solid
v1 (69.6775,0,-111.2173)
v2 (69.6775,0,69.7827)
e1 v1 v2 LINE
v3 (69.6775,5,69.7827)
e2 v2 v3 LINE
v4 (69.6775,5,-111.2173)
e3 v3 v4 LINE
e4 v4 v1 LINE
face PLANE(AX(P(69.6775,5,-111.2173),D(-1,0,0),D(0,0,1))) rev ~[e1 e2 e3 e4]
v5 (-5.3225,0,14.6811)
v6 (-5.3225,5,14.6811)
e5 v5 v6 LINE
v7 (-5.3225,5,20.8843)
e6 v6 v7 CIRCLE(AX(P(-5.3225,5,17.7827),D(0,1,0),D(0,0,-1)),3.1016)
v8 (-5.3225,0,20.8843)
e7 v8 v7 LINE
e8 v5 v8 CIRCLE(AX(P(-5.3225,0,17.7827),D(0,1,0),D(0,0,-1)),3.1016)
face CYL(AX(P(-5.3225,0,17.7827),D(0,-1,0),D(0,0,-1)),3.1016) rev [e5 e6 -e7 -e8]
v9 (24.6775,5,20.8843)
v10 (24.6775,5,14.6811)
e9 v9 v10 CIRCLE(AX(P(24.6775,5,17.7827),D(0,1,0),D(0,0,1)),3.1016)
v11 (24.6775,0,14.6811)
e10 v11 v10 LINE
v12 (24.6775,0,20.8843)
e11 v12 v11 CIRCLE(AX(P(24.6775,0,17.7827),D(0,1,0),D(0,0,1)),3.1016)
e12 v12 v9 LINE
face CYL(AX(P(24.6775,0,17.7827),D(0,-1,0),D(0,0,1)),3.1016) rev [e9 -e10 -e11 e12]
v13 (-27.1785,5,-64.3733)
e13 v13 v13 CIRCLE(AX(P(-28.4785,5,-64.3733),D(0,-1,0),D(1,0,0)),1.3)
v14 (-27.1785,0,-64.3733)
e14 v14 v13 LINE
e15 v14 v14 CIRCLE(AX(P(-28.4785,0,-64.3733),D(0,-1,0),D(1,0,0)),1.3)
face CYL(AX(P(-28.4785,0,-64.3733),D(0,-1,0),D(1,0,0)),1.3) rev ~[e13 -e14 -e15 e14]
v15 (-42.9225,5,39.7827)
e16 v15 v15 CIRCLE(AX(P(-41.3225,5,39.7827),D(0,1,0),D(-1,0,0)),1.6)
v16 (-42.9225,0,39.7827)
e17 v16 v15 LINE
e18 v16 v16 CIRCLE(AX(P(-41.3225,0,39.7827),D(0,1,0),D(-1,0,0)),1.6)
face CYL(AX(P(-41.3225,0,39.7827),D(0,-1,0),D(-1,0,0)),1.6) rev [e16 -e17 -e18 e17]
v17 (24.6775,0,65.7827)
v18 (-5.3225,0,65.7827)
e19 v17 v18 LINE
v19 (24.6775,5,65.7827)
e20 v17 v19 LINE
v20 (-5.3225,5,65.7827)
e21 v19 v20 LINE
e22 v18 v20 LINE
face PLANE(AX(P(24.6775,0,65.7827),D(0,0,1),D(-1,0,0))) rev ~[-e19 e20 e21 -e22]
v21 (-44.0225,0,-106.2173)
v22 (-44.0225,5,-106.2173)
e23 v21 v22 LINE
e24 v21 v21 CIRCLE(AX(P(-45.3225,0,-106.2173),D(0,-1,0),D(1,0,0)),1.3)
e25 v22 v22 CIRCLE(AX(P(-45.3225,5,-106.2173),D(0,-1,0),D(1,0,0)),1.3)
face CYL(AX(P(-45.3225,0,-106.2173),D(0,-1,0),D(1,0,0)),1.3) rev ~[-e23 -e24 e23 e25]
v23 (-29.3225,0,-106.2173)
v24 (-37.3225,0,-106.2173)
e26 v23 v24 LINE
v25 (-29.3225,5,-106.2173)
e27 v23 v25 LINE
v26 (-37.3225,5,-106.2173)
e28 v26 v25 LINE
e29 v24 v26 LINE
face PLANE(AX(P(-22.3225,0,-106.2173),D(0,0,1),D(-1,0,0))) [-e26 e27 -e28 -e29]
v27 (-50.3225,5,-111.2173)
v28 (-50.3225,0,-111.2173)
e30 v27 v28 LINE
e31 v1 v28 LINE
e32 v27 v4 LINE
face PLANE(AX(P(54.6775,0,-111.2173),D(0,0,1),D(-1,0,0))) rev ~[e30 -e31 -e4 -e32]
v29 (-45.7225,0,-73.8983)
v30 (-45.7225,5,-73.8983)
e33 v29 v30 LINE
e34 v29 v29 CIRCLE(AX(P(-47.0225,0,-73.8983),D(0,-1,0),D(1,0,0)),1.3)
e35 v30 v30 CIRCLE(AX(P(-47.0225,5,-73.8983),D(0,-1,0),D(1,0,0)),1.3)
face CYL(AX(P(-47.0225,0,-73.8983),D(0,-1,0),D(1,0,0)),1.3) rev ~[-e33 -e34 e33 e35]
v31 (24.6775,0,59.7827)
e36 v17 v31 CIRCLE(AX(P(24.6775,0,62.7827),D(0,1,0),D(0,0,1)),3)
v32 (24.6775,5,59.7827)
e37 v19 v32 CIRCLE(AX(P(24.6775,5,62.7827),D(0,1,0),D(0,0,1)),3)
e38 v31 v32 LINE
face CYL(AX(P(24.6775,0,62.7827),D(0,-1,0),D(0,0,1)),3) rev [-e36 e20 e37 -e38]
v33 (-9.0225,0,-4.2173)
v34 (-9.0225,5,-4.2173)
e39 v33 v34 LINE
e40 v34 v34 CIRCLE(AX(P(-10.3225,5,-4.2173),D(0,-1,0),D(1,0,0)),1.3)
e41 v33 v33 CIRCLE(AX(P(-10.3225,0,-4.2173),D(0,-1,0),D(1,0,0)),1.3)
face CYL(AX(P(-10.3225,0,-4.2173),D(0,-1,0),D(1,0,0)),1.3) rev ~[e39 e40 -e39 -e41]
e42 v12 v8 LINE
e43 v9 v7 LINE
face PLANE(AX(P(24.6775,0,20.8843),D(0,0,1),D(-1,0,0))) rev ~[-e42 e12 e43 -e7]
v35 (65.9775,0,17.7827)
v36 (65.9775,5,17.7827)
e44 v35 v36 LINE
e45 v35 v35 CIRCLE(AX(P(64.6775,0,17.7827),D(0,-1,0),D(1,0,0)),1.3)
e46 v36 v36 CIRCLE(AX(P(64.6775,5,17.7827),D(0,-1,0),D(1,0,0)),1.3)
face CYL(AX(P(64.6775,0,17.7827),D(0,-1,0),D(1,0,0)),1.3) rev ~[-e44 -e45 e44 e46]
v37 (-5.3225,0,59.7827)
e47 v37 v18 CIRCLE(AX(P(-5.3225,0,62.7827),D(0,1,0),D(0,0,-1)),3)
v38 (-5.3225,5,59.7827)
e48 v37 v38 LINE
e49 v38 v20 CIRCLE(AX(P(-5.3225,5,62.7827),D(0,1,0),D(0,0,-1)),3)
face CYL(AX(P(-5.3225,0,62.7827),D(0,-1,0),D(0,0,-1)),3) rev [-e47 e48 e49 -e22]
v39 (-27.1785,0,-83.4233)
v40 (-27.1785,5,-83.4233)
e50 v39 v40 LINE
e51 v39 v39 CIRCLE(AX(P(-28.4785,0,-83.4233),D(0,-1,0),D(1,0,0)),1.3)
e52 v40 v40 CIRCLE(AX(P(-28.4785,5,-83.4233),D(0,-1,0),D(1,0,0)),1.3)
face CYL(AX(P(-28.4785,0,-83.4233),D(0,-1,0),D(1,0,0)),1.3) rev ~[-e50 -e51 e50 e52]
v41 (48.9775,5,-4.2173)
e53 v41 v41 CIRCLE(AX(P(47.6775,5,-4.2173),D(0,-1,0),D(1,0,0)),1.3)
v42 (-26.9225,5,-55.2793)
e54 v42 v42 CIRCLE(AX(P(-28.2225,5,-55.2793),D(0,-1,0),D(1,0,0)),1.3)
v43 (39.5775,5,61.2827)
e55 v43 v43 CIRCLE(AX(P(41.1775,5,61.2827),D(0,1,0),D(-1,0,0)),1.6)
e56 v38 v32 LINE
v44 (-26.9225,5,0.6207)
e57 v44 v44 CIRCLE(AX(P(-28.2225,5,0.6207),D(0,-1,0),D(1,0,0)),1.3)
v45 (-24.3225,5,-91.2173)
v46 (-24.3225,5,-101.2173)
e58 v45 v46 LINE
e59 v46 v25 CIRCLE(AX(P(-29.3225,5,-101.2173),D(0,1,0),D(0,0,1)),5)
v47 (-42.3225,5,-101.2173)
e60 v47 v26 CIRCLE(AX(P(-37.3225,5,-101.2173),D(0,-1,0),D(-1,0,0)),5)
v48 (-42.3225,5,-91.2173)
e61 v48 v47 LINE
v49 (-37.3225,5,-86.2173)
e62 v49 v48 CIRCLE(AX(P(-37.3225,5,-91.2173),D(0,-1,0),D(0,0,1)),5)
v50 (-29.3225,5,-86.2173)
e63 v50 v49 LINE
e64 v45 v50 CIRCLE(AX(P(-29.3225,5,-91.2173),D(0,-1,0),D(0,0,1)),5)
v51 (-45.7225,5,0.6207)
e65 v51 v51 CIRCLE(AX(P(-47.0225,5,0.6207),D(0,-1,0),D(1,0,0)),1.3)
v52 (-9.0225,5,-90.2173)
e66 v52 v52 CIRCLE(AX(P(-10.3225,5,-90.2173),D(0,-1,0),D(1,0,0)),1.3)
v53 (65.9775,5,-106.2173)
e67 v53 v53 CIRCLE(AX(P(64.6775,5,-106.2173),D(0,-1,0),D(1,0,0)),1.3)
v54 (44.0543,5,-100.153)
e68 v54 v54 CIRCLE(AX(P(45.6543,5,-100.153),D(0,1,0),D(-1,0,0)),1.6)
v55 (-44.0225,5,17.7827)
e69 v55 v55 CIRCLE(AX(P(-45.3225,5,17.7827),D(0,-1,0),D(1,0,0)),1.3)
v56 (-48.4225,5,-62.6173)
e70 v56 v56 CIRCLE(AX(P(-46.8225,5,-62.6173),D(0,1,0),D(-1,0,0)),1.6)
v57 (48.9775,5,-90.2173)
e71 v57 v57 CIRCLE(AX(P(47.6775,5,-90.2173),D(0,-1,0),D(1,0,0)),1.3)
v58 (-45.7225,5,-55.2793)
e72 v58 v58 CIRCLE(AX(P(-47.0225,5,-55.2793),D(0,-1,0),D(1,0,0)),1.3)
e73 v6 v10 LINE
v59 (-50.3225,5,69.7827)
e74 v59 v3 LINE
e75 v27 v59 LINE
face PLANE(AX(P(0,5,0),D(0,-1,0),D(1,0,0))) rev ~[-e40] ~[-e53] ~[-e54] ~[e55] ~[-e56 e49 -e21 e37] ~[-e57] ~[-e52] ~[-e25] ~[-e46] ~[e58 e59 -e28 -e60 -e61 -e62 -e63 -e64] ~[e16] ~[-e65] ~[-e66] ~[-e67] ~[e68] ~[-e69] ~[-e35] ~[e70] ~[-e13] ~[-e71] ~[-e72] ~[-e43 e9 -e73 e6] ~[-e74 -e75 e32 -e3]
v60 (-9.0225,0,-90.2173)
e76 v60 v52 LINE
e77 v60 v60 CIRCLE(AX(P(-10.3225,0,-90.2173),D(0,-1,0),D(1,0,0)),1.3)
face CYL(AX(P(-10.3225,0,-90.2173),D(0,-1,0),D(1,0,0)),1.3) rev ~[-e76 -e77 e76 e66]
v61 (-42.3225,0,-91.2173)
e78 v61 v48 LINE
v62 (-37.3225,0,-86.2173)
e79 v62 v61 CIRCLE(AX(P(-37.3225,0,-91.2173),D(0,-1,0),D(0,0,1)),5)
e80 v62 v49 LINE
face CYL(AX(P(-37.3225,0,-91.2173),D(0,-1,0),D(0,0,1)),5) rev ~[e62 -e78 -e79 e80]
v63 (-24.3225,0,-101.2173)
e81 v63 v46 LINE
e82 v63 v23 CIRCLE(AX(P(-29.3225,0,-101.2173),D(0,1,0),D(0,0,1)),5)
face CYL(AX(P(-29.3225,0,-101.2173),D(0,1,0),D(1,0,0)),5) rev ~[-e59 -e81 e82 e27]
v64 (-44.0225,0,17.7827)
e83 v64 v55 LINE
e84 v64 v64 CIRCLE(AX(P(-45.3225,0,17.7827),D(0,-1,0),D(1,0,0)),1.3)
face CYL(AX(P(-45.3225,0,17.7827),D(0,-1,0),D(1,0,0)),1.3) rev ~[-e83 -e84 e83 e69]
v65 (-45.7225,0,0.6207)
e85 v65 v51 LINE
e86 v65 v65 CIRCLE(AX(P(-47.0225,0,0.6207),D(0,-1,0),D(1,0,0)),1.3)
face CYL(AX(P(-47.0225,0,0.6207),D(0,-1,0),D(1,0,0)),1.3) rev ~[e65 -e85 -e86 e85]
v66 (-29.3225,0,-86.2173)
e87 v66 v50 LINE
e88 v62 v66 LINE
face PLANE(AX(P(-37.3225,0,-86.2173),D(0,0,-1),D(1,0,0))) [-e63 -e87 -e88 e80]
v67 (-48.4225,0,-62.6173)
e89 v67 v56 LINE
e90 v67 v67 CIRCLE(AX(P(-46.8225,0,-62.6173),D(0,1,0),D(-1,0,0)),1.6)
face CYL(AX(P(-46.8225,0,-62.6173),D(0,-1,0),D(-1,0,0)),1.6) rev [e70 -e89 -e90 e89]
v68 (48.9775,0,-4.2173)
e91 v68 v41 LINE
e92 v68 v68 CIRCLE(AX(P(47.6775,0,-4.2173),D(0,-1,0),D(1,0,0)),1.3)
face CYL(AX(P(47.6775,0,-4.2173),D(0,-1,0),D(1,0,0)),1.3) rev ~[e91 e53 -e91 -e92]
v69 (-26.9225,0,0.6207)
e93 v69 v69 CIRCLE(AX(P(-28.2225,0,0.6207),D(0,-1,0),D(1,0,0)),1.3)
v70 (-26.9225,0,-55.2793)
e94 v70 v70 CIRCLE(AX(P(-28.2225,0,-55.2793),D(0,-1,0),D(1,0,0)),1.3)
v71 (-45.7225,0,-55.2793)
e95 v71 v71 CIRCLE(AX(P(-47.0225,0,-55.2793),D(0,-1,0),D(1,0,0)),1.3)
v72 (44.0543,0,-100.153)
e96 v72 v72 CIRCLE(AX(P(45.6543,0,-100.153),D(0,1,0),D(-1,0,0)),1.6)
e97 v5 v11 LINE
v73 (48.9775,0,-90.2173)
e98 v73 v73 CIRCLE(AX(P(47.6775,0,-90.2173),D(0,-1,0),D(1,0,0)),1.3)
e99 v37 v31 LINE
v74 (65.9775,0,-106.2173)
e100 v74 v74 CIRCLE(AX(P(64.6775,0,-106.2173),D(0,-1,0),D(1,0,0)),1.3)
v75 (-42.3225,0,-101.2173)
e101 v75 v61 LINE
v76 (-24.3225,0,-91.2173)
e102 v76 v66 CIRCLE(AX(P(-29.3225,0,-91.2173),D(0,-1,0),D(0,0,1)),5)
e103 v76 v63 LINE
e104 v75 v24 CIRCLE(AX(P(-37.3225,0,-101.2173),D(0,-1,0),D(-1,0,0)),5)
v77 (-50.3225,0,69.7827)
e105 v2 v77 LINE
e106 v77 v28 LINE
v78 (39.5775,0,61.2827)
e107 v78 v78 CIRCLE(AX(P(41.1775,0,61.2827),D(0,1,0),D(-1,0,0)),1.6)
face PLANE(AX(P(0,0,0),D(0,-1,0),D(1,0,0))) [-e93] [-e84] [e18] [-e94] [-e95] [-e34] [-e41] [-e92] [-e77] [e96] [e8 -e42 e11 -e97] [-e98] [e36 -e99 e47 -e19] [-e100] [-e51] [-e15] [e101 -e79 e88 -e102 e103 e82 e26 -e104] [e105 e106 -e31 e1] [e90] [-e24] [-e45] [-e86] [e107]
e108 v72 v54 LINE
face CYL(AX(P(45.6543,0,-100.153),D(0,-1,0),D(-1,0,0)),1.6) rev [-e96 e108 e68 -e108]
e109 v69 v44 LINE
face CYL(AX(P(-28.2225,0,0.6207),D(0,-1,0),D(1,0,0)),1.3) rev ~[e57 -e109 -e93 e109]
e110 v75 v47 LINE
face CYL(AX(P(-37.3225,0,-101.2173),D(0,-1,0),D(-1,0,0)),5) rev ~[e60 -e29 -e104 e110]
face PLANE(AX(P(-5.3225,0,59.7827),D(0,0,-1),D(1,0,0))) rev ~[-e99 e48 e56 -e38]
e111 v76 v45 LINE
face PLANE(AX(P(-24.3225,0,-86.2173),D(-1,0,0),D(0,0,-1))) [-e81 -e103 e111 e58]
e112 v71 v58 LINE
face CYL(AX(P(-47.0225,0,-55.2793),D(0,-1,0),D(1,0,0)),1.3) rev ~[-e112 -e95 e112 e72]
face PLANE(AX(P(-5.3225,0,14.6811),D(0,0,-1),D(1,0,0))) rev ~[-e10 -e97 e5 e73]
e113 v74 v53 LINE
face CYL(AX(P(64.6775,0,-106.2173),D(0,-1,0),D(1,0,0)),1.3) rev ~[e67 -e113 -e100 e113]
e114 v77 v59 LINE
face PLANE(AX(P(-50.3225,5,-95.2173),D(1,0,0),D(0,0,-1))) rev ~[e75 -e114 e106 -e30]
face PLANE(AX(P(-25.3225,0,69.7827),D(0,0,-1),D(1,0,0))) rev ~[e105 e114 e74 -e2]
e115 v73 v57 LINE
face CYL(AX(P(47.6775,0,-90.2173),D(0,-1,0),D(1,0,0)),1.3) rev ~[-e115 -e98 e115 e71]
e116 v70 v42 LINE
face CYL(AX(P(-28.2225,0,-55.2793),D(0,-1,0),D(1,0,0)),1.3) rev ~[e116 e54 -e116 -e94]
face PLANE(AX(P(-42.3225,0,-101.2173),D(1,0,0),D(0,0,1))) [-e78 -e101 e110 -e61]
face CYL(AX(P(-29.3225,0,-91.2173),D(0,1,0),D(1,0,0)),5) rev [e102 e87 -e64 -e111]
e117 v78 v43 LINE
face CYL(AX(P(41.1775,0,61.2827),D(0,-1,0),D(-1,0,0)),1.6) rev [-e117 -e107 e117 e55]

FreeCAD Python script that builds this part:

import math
import FreeCAD as App
import Part
import Sketcher
from FreeCAD import Vector
Q = App.Units.Quantity


def edges_at(feature, points):
    """Names of the edges that pass closest to the given points."""
    edges = feature.Shape.Edges
    near = lambda p: min(range(len(edges)), key=lambda i: edges[i].distToShape(Part.Vertex(*p))[0])
    return sorted({f"Edge{near(p) + 1}" for p in points})

doc = App.newDocument("Part")
params = doc.addObject("Spreadsheet::Sheet", "Params")
for row, (alias, value) in enumerate([
    ("sketch1_radius", "4 mm"),
    ("sketch1_radius2", "3 mm"),
    ("sketch1_diameter", "3.2 mm"),
    ("sketch1_width", "90 mm"),
    ("sketch1_width2", "11 mm"),
    ("pad1_length", "5 mm"),
    ("sketch2_radius", "4 mm"),
    ("sketch2_width", "11 mm"),
    ("sketch2_height", "16 mm"),
    ("sketch2_height2", "49 mm"),
    ("sketch2_height3", "30 mm"),
    ("pad2_length", "5 mm"),
    ("sketch3_radius", "5 mm"),
    ("sketch3_diameter", "2.6 mm"),
    ("sketch3_height", "10 mm"),
    ("sketch3_width", "15 mm"),
    ("pocket1_length", "10 mm"),
    ("sketch4_diameter", "2.6 mm"),
    ("pad3_length", "5 mm"),
    ("sketch5_diameter", "2.5 mm"),
    ("pocket2_length", "5 mm"),
    ("sketch6_diameter", "2.6 mm"),
    ("sketch6_diameter2", "2.5 mm"),
    ("pocket3_length", "5 mm"),
    ("sketch7_radius", "5 mm"),
    ("sketch7_width", "2 mm"),
    ("sketch7_height", "20 mm"),
    ("pad4_length", "5 mm"),
    ("fillet_radius", "5 mm"),
], start=1):
    params.set(f"A{row}", alias)
    params.set(f"B{row}", "=" + value)
    params.setAlias(f"B{row}", alias)

body = doc.addObject("PartDesign::Body", "Body")

# Sketch on XZ plane
sketch1 = doc.addObject("Sketcher::SketchObject", "Sketch")
body.addObject(sketch1)
sketch1.AttachmentSupport = (doc.XZ_Plane, [""])
sketch1.MapMode = "FlatFace"
sketch1.addGeometry([
    Part.LineSegment(Vector(54.6775, -111.2173, 0), Vector(-35.3225, -111.2173, 0)),  # 0
    Part.LineSegment(Vector(-35.3225, -111.2173, 0), Vector(-35.3225, -99.2173, 0)),  # 1
    Part.ArcOfCircle(Part.Circle(Vector(-39.3225, -99.2173, 0), Vector(0, 0, 1), 4), math.radians(0), math.radians(90)),  # 2
    Part.LineSegment(Vector(-39.3225, -95.2173, 0), Vector(-50.3225, -95.2173, 0)),  # 3
    Part.LineSegment(Vector(-50.3225, -95.2173, 0), Vector(-50.3225, -19.2173, 0)),  # 4
    Part.LineSegment(Vector(-50.3225, -19.2173, 0), Vector(-41.3225, -10.2173, 0)),  # 5
    Part.LineSegment(Vector(-41.3225, -10.2173, 0), Vector(-41.3225, 19.7827, 0)),  # 6
    Part.LineSegment(Vector(-41.3225, 19.7827, 0), Vector(-50.3225, 29.7827, 0)),  # 7
    Part.LineSegment(Vector(-50.3225, 29.7827, 0), Vector(-50.3225, 69.7827, 0)),  # 8
    Part.LineSegment(Vector(-50.3225, 69.7827, 0), Vector(69.6775, 69.7827, 0)),  # 9
    Part.LineSegment(Vector(69.6775, 69.7827, 0), Vector(69.6775, -95.2173, 0)),  # 10
    Part.LineSegment(Vector(69.6775, -95.2173, 0), Vector(58.6775, -95.2173, 0)),  # 11
    Part.ArcOfCircle(Part.Circle(Vector(58.6775, -99.2173, 0), Vector(0, 0, 1), 4), math.radians(90), math.radians(180)),  # 12
    Part.LineSegment(Vector(54.6775, -99.2173, 0), Vector(54.6775, -111.2173, 0)),  # 13
    Part.Circle(Vector(45.6543, -100.153, 0), Vector(0, 0, 1), 1.6),  # 14
    Part.Circle(Vector(-46.8225, -62.6173, 0), Vector(0, 0, 1), 1.6),  # 15
    Part.ArcOfCircle(Part.Circle(Vector(-5.3225, 17.7827, 0), Vector(0, 0, 1), 3.1016), math.radians(90), math.radians(270)),  # 16
    Part.LineSegment(Vector(-5.3225, 14.6811, 0), Vector(24.6775, 14.6811, 0)),  # 17
    Part.ArcOfCircle(Part.Circle(Vector(24.6775, 17.7827, 0), Vector(0, 0, 1), 3.1016), math.radians(-90), math.radians(90)),  # 18
    Part.LineSegment(Vector(24.6775, 20.8843, 0), Vector(-5.3225, 20.8843, 0)),  # 19
    Part.Circle(Vector(41.1775, 61.2827, 0), Vector(0, 0, 1), 1.6),  # 20
    Part.ArcOfCircle(Part.Circle(Vector(24.6775, 62.7827, 0), Vector(0, 0, 1), 3), math.radians(-90), math.radians(90)),  # 21
    Part.LineSegment(Vector(24.6775, 65.7827, 0), Vector(-5.3225, 65.7827, 0)),  # 22
    Part.ArcOfCircle(Part.Circle(Vector(-5.3225, 62.7827, 0), Vector(0, 0, 1), 3), math.radians(90), math.radians(270)),  # 23
    Part.LineSegment(Vector(-5.3225, 59.7827, 0), Vector(24.6775, 59.7827, 0)),  # 24
    Part.Circle(Vector(-41.3225, 39.7827, 0), Vector(0, 0, 1), 1.6),  # 25
], False)
sketch1.addConstraint([
    Sketcher.Constraint("Coincident", 0, 2, 1, 1),
    Sketcher.Constraint("Tangent", 1, 2, 2, 1),
    Sketcher.Constraint("Tangent", 2, 2, 3, 1),
    Sketcher.Constraint("Coincident", 3, 2, 4, 1),
    Sketcher.Constraint("Coincident", 4, 2, 5, 1),
    Sketcher.Constraint("Coincident", 5, 2, 6, 1),
    Sketcher.Constraint("Coincident", 6, 2, 7, 1),
    Sketcher.Constraint("Coincident", 7, 2, 8, 1),
    Sketcher.Constraint("Coincident", 8, 2, 9, 1),
    Sketcher.Constraint("Coincident", 9, 2, 10, 1),
    Sketcher.Constraint("Coincident", 10, 2, 11, 1),
    Sketcher.Constraint("Tangent", 11, 2, 12, 1),
    Sketcher.Constraint("Tangent", 12, 2, 13, 1),
    Sketcher.Constraint("Coincident", 13, 2, 0, 1),
    Sketcher.Constraint("Tangent", 16, 2, 17, 1),
    Sketcher.Constraint("Tangent", 17, 2, 18, 1),
    Sketcher.Constraint("Tangent", 18, 2, 19, 1),
    Sketcher.Constraint("Tangent", 19, 2, 16, 1),
    Sketcher.Constraint("Tangent", 21, 2, 22, 1),
    Sketcher.Constraint("Tangent", 22, 2, 23, 1),
    Sketcher.Constraint("Tangent", 23, 2, 24, 1),
    Sketcher.Constraint("Tangent", 24, 2, 21, 1),
    Sketcher.Constraint("Horizontal", 0),
    Sketcher.Constraint("Vertical", 1),
    Sketcher.Constraint("Horizontal", 3),
    Sketcher.Constraint("Vertical", 4),
    Sketcher.Constraint("Vertical", 6),
    Sketcher.Constraint("Vertical", 8),
    Sketcher.Constraint("Horizontal", 9),
    Sketcher.Constraint("Vertical", 10),
    Sketcher.Constraint("Horizontal", 11),
    Sketcher.Constraint("Vertical", 13),
    Sketcher.Constraint("Horizontal", 17),
    Sketcher.Constraint("Horizontal", 19),
    Sketcher.Constraint("Horizontal", 22),
    Sketcher.Constraint("Horizontal", 24),
    Sketcher.Constraint("Equal", 2, 12),
    Sketcher.Constraint("Equal", 14, 15),
    Sketcher.Constraint("Equal", 15, 20),
    Sketcher.Constraint("Equal", 20, 25),
    Sketcher.Constraint("Horizontal", 2, 3, 12, 3),
    Sketcher.Constraint("Vertical", 18, 3, 21, 3),
    Sketcher.Constraint("Vertical", 16, 3, 23, 3),
    Sketcher.Constraint("Vertical", 25, 3, 5, 2),
    Sketcher.Constraint("Vertical", 4, 2, 7, 2),
    Sketcher.Constraint("Equal", 3, 11),
    Sketcher.Constraint("Equal", 24, 6),
    Sketcher.Constraint("Radius", 2, 4.0),
    Sketcher.Constraint("Radius", 21, 3.0),
    Sketcher.Constraint("Diameter", 14, 3.2),
    Sketcher.Constraint("DistanceX", 0, 2, 0, 1, 90.0),
    Sketcher.Constraint("DistanceX", 3, 2, 3, 1, 11.0),
    Sketcher.Constraint("DistanceX", 17, 1, 17, 2, 30.0),
    Sketcher.Constraint("DistanceY", 1, 1, 1, 2, 12.0),
    Sketcher.Constraint("DistanceY", 4, 1, 4, 2, 76.0),
    Sketcher.Constraint("DistanceY", 8, 1, 8, 2, 40.0),
    Sketcher.Constraint("DistanceY", 10, 2, 10, 1, 165.0),
    Sketcher.Constraint("Angle", 5, Q("45 deg")),
    Sketcher.Constraint("DistanceX", 2, 3, 16, 3, 34.0),
    Sketcher.Constraint("DistanceY", 2, 3, 16, 3, 117.0),
    Sketcher.Constraint("DistanceX", 15, 3, 20, 3, 88.0),
    Sketcher.Constraint("DistanceY", 18, 3, 21, 3, 45.0),
    Sketcher.Constraint("DistanceX", 25, 3, 16, 3, 36.0),
    Sketcher.Constraint("DistanceY", 16, 3, 25, 3, 22.0),
    Sketcher.Constraint("Radius", 16, 3.1016),
    Sketcher.Constraint("DistanceX", 15, 3, 2, 3, 7.5),
    Sketcher.Constraint("DistanceY", 2, 3, 15, 3, 36.6),
    Sketcher.Constraint("DistanceY", 18, 3, 20, 3, 43.5),
    Sketcher.Constraint("DistanceY", 14, 3, -1, 1, 100.153),
    Sketcher.Constraint("DistanceY", -1, 1, 16, 2, 14.681),
    Sketcher.Constraint("DistanceX", 2, 3, -1, 1, 39.3225),
    Sketcher.Constraint("DistanceX", -1, 1, 14, 3, 45.6543),
])
sketch1.setExpression("Constraints[47]", "Params.sketch1_radius")
sketch1.setExpression("Constraints[48]", "Params.sketch1_radius2")
sketch1.setExpression("Constraints[49]", "Params.sketch1_diameter")
sketch1.setExpression("Constraints[50]", "Params.sketch1_width")
sketch1.setExpression("Constraints[51]", "Params.sketch1_width2")
pad1 = doc.addObject("PartDesign::Pad", "Pad")
body.addObject(pad1)
pad1.Profile = sketch1
pad1.setExpression("Length", "Params.pad1_length")
pad1.Reversed = True

# Sketch on XZ plane
sketch2 = doc.addObject("Sketcher::SketchObject", "Sketch001")
body.addObject(sketch2)
sketch2.AttachmentSupport = (doc.XZ_Plane, [""])
sketch2.MapMode = "FlatFace"
sketch2.AttachmentOffset = App.Placement(Vector(0, 0, -5), App.Rotation())
sketch2.addGeometry([
    Part.LineSegment(Vector(-50.3225, -111.2173, 0), Vector(-50.3225, -95.2173, 0)),  # 0
    Part.LineSegment(Vector(-50.3225, -95.2173, 0), Vector(-39.3225, -95.2173, 0)),  # 1
    Part.ArcOfCircle(Part.Circle(Vector(-39.3225, -99.2173, 0), Vector(0, 0, 1), 4), math.radians(0), math.radians(90)),  # 2
    Part.LineSegment(Vector(-35.3225, -99.2173, 0), Vector(-35.3225, -111.2173, 0)),  # 3
    Part.LineSegment(Vector(-35.3225, -111.2173, 0), Vector(-50.3225, -111.2173, 0)),  # 4
    Part.LineSegment(Vector(-41.3225, -10.2173, 0), Vector(-50.3225, -19.2173, 0)),  # 5
    Part.LineSegment(Vector(-50.3225, -19.2173, 0), Vector(-50.3225, 29.7827, 0)),  # 6
    Part.LineSegment(Vector(-50.3225, 29.7827, 0), Vector(-41.3225, 19.7827, 0)),  # 7
    Part.LineSegment(Vector(-41.3225, 19.7827, 0), Vector(-41.3225, -10.2173, 0)),  # 8
    Part.LineSegment(Vector(69.6775, -111.2173, 0), Vector(54.6775, -111.2173, 0)),  # 9
    Part.LineSegment(Vector(54.6775, -111.2173, 0), Vector(54.6775, -99.2173, 0)),  # 10
    Part.ArcOfCircle(Part.Circle(Vector(58.6775, -99.2173, 0), Vector(0, 0, 1), 4), math.radians(90), math.radians(180)),  # 11
    Part.LineSegment(Vector(58.6775, -95.2173, 0), Vector(69.6775, -95.2173, 0)),  # 12
    Part.LineSegment(Vector(69.6775, -95.2173, 0), Vector(69.6775, -111.2173, 0)),  # 13
], False)
sketch2.addConstraint([
    Sketcher.Constraint("Coincident", 0, 2, 1, 1),
    Sketcher.Constraint("Tangent", 1, 2, 2, 2),
    Sketcher.Constraint("Tangent", 2, 1, 3, 1),
    Sketcher.Constraint("Coincident", 3, 2, 4, 1),
    Sketcher.Constraint("Coincident", 4, 2, 0, 1),
    Sketcher.Constraint("Coincident", 5, 2, 6, 1),
    Sketcher.Constraint("Coincident", 6, 2, 7, 1),
    Sketcher.Constraint("Coincident", 7, 2, 8, 1),
    Sketcher.Constraint("Coincident", 8, 2, 5, 1),
    Sketcher.Constraint("Coincident", 9, 2, 10, 1),
    Sketcher.Constraint("Tangent", 10, 2, 11, 2),
    Sketcher.Constraint("Tangent", 11, 1, 12, 1),
    Sketcher.Constraint("Coincident", 12, 2, 13, 1),
    Sketcher.Constraint("Coincident", 13, 2, 9, 1),
    Sketcher.Constraint("Vertical", 0),
    Sketcher.Constraint("Horizontal", 1),
    Sketcher.Constraint("Vertical", 3),
    Sketcher.Constraint("Horizontal", 4),
    Sketcher.Constraint("Vertical", 6),
    Sketcher.Constraint("Vertical", 8),
    Sketcher.Constraint("Horizontal", 9),
    Sketcher.Constraint("Vertical", 10),
    Sketcher.Constraint("Horizontal", 12),
    Sketcher.Constraint("Vertical", 13),
    Sketcher.Constraint("Equal", 2, 11),
    Sketcher.Constraint("Horizontal", 2, 3, 11, 3),
    Sketcher.Constraint("Horizontal", 4, 2, 9, 2),
    Sketcher.Constraint("Vertical", 4, 2, 5, 2),
    Sketcher.Constraint("Equal", 4, 9),
    Sketcher.Constraint("Radius", 2, 4.0),
    Sketcher.Constraint("DistanceX", 1, 1, 1, 2, 11.0),
    Sketcher.Constraint("DistanceY", 0, 1, 0, 2, 16.0),
    Sketcher.Constraint("DistanceY", 6, 1, 6, 2, 49.0),
    Sketcher.Constraint("DistanceY", 8, 2, 8, 1, 30.0),
    Sketcher.Constraint("Angle", 5, Q("-135 deg")),
    Sketcher.Constraint("DistanceX", 2, 3, 11, 3, 98.0),
    Sketcher.Constraint("DistanceY", 0, 2, 5, 2, 76.0),
    Sketcher.Constraint("DistanceX", 6, 2, 7, 2, 9.0),
    Sketcher.Constraint("DistanceX", 2, 3, -1, 1, 39.3225),
    Sketcher.Constraint("DistanceY", 2, 3, -1, 1, 99.2173),
])
sketch2.setExpression("Constraints[29]", "Params.sketch2_radius")
sketch2.setExpression("Constraints[30]", "Params.sketch2_width")
sketch2.setExpression("Constraints[31]", "Params.sketch2_height")
sketch2.setExpression("Constraints[32]", "Params.sketch2_height2")
sketch2.setExpression("Constraints[33]", "Params.sketch2_height3")
pad2 = doc.addObject("PartDesign::Pad", "Pad001")
body.addObject(pad2)
pad2.Profile = sketch2
pad2.setExpression("Length", "Params.pad2_length")

# Sketch on XZ plane
sketch3 = doc.addObject("Sketcher::SketchObject", "Sketch002")
body.addObject(sketch3)
sketch3.AttachmentSupport = (doc.XZ_Plane, [""])
sketch3.MapMode = "FlatFace"
sketch3.addGeometry([
    Part.Circle(Vector(-23.2225, 2.6207, 0), Vector(0, 0, 1), 1.3),  # 0
    Part.Circle(Vector(-23.2225, -53.2793, 0), Vector(0, 0, 1), 1.3),  # 1
    Part.Circle(Vector(-42.0225, 2.6207, 0), Vector(0, 0, 1), 1.3),  # 2
    Part.Circle(Vector(-42.0225, -53.2793, 0), Vector(0, 0, 1), 1.3),  # 3
    Part.Circle(Vector(-23.4785, -64.3733, 0), Vector(0, 0, 1), 1.3),  # 4
    Part.Circle(Vector(-23.4785, -83.4233, 0), Vector(0, 0, 1), 1.3),  # 5
    Part.Circle(Vector(47.6775, -4.2173, 0), Vector(0, 0, 1), 1.3),  # 6
    Part.Circle(Vector(-10.3225, -4.2173, 0), Vector(0, 0, 1), 1.3),  # 7
    Part.Circle(Vector(-10.3225, -90.2173, 0), Vector(0, 0, 1), 1.3),  # 8
    Part.Circle(Vector(47.6775, -90.2173, 0), Vector(0, 0, 1), 1.3),  # 9
    Part.Circle(Vector(64.6775, 17.7827, 0), Vector(0, 0, 1), 1.3),  # 10
    Part.Circle(Vector(-45.3225, 17.7827, 0), Vector(0, 0, 1), 1.3),  # 11
    Part.Circle(Vector(-45.3225, -106.2173, 0), Vector(0, 0, 1), 1.3),  # 12
    Part.Circle(Vector(64.6775, -106.2173, 0), Vector(0, 0, 1), 1.3),  # 13
    Part.LineSegment(Vector(-22.3225, -86.2173, 0), Vector(-37.3225, -86.2173, 0)),  # 14
    Part.ArcOfCircle(Part.Circle(Vector(-37.3225, -91.2173, 0), Vector(0, 0, 1), 5), math.radians(90), math.radians(180)),  # 15
    Part.LineSegment(Vector(-42.3225, -91.2173, 0), Vector(-42.3225, -101.2173, 0)),  # 16
    Part.ArcOfCircle(Part.Circle(Vector(-37.3225, -101.2173, 0), Vector(0, 0, 1), 5), math.radians(180), math.radians(270)),  # 17
    Part.LineSegment(Vector(-37.3225, -106.2173, 0), Vector(-22.3225, -106.2173, 0)),  # 18
    Part.ArcOfCircle(Part.Circle(Vector(-22.3225, -101.2173, 0), Vector(0, 0, 1), 5), math.radians(-90), math.radians(0)),  # 19
    Part.LineSegment(Vector(-17.3225, -101.2173, 0), Vector(-17.3225, -91.2173, 0)),  # 20
    Part.ArcOfCircle(Part.Circle(Vector(-22.3225, -91.2173, 0), Vector(0, 0, 1), 5), math.radians(0), math.radians(90)),  # 21
    Part.Circle(Vector(-42.5285, -73.8983, 0), Vector(0, 0, 1), 1.3),  # 22
], False)
sketch3.addConstraint([
    Sketcher.Constraint("Tangent", 14, 2, 15, 1),
    Sketcher.Constraint("Tangent", 15, 2, 16, 1),
    Sketcher.Constraint("Tangent", 16, 2, 17, 1),
    Sketcher.Constraint("Tangent", 17, 2, 18, 1),
    Sketcher.Constraint("Tangent", 18, 2, 19, 1),
    Sketcher.Constraint("Tangent", 19, 2, 20, 1),
    Sketcher.Constraint("Tangent", 20, 2, 21, 1),
    Sketcher.Constraint("Tangent", 21, 2, 14, 1),
    Sketcher.Constraint("Horizontal", 14),
    Sketcher.Constraint("Vertical", 16),
    Sketcher.Constraint("Horizontal", 18),
    Sketcher.Constraint("Vertical", 20),
    Sketcher.Constraint("Equal", 0, 1),
    Sketcher.Constraint("Equal", 1, 2),
    Sketcher.Constraint("Equal", 2, 3),
    Sketcher.Constraint("Equal", 3, 4),
    Sketcher.Constraint("Equal", 4, 5),
    Sketcher.Constraint("Equal", 5, 6),
    Sketcher.Constraint("Equal", 6, 7),
    Sketcher.Constraint("Equal", 7, 8),
    Sketcher.Constraint("Equal", 8, 9),
    Sketcher.Constraint("Equal", 9, 10),
    Sketcher.Constraint("Equal", 10, 11),
    Sketcher.Constraint("Equal", 11, 12),
    Sketcher.Constraint("Equal", 12, 13),
    Sketcher.Constraint("Equal", 15, 17),
    Sketcher.Constraint("Equal", 17, 19),
    Sketcher.Constraint("Equal", 19, 21),
    Sketcher.Constraint("Equal", 13, 22),
    Sketcher.Constraint("Horizontal", 0, 3, 2, 3),
    Sketcher.Constraint("Horizontal", 1, 3, 3, 3),
    Sketcher.Constraint("Horizontal", 6, 3, 7, 3),
    Sketcher.Constraint("Horizontal", 8, 3, 9, 3),
    Sketcher.Constraint("Horizontal", 10, 3, 11, 3),
    Sketcher.Constraint("Horizontal", 12, 3, 13, 3),
    Sketcher.Constraint("Horizontal", 13, 3, 17, 2),
    Sketcher.Constraint("Vertical", 0, 3, 1, 3),
    Sketcher.Constraint("Vertical", 2, 3, 3, 3),
    Sketcher.Constraint("Vertical", 4, 3, 5, 3),
    Sketcher.Constraint("Vertical", 7, 3, 8, 3),
    Sketcher.Constraint("Vertical", 6, 3, 9, 3),
    Sketcher.Constraint("Vertical", 11, 3, 12, 3),
    Sketcher.Constraint("Vertical", 10, 3, 13, 3),
    Sketcher.Constraint("Radius", 15, 5.0),
    Sketcher.Constraint("Diameter", 0, 2.6),
    Sketcher.Constraint("DistanceY", 16, 2, 16, 1, 10.0),
    Sketcher.Constraint("DistanceX", 7, 3, 6, 3, 58.0),
    Sketcher.Constraint("DistanceY", 8, 3, 7, 3, 86.0),
    Sketcher.Constraint("DistanceX", 6, 3, 10, 3, 17.0),
    Sketcher.Constraint("DistanceX", 12, 3, 15, 2, 3.0),
    Sketcher.Constraint("DistanceY", 8, 3, 21, 2, 4.0),
    Sketcher.Constraint("DistanceY", 1, 3, 0, 3, 55.9),
    Sketcher.Constraint("DistanceX", 2, 3, 0, 3, 18.8),
    Sketcher.Constraint("DistanceX", 11, 3, 2, 3, 3.3),
    Sketcher.Constraint("DistanceX", 14, 2, 14, 1, 15.0),
    Sketcher.Constraint("DistanceY", 5, 3, 4, 3, 19.05),
    Sketcher.Constraint("DistanceX", 22, 3, 5, 3, 19.05),
    Sketcher.Constraint("DistanceY", 6, 3, 10, 3, 22.0),
    Sketcher.Constraint("DistanceX", 11, 3, 7, 3, 35.0),
    Sketcher.Constraint("DistanceX", 12, 3, 5, 3, 21.844),
    Sketcher.Constraint("DistanceY", 14, 2, 5, 3, 2.794),
    Sketcher.Constraint("DistanceY", 4, 3, 1, 3, 11.094),
    Sketcher.Constraint("DistanceY", 15, 3, 22, 3, 17.319),
    Sketcher.Constraint("DistanceX", 0, 3, -1, 1, 23.2225),
    Sketcher.Constraint("DistanceY", -1, 1, 0, 3, 2.6207),
])
sketch3.setExpression("Constraints[43]", "Params.sketch3_radius")
sketch3.setExpression("Constraints[44]", "Params.sketch3_diameter")
sketch3.setExpression("Constraints[45]", "Params.sketch3_height")
sketch3.setExpression("Constraints[54]", "Params.sketch3_width")
pocket1 = doc.addObject("PartDesign::Pocket", "Pocket")
body.addObject(pocket1)
pocket1.Profile = sketch3
pocket1.setExpression("Length", "Params.pocket1_length")

# Sketch on XZ plane
sketch4 = doc.addObject("Sketcher::SketchObject", "Sketch003")
body.addObject(sketch4)
sketch4.AttachmentSupport = (doc.XZ_Plane, [""])
sketch4.MapMode = "FlatFace"
sketch4.addGeometry([
    Part.Circle(Vector(-23.2225, -53.2793, 0), Vector(0, 0, 1), 1.3),  # 0
    Part.Circle(Vector(-42.0225, -53.2793, 0), Vector(0, 0, 1), 1.3),  # 1
    Part.Circle(Vector(-42.5285, -73.8983, 0), Vector(0, 0, 1), 1.3),  # 2
    Part.Circle(Vector(-23.4785, -83.4233, 0), Vector(0, 0, 1), 1.3),  # 3
    Part.Circle(Vector(-42.0225, 2.6207, 0), Vector(0, 0, 1), 1.3),  # 4
    Part.Circle(Vector(-23.2225, 2.6207, 0), Vector(0, 0, 1), 1.3),  # 5
    Part.Circle(Vector(-23.4785, -64.3733, 0), Vector(0, 0, 1), 1.3),  # 6
], False)
sketch4.addConstraint([
    Sketcher.Constraint("Equal", 0, 1),
    Sketcher.Constraint("Equal", 1, 2),
    Sketcher.Constraint("Equal", 2, 3),
    Sketcher.Constraint("Equal", 3, 4),
    Sketcher.Constraint("Equal", 4, 5),
    Sketcher.Constraint("Equal", 5, 6),
    Sketcher.Constraint("Horizontal", 0, 3, 1, 3),
    Sketcher.Constraint("Horizontal", 4, 3, 5, 3),
    Sketcher.Constraint("Vertical", 1, 3, 4, 3),
    Sketcher.Constraint("Vertical", 0, 3, 5, 3),
    Sketcher.Constraint("Vertical", 3, 3, 6, 3),
    Sketcher.Constraint("Diameter", 0, 2.6),
    Sketcher.Constraint("DistanceX", 1, 3, 0, 3, 18.8),
    Sketcher.Constraint("DistanceY", 1, 3, 4, 3, 55.9),
    Sketcher.Constraint("DistanceX", 2, 3, 3, 3, 19.05),
    Sketcher.Constraint("DistanceY", 3, 3, 6, 3, 19.05),
    Sketcher.Constraint("DistanceX", 2, 3, 1, 3, 0.506),
    Sketcher.Constraint("DistanceY", 2, 3, 1, 3, 20.619),
    Sketcher.Constraint("DistanceY", 3, 3, 2, 3, 9.525),
    Sketcher.Constraint("DistanceX", 0, 3, -1, 1, 23.2225),
    Sketcher.Constraint("DistanceY", 0, 3, -1, 1, 53.2793),
])
sketch4.setExpression("Constraints[11]", "Params.sketch4_diameter")
pad3 = doc.addObject("PartDesign::Pad", "Pad002")
body.addObject(pad3)
pad3.Profile = sketch4
pad3.setExpression("Length", "Params.pad3_length")
pad3.Reversed = True

# Sketch on XZ plane
sketch5 = doc.addObject("Sketcher::SketchObject", "Sketch004")
body.addObject(sketch5)
sketch5.AttachmentSupport = (doc.XZ_Plane, [""])
sketch5.MapMode = "FlatFace"
sketch5.addGeometry([
    Part.Circle(Vector(-47.0225, 0.6207, 0), Vector(0, 0, 1), 1.25),  # 0
    Part.Circle(Vector(-28.2225, 0.6207, 0), Vector(0, 0, 1), 1.25),  # 1
    Part.Circle(Vector(-47.0225, -55.2793, 0), Vector(0, 0, 1), 1.25),  # 2
    Part.Circle(Vector(-28.2225, -55.2793, 0), Vector(0, 0, 1), 1.25),  # 3
    Part.Circle(Vector(-28.4785, -83.4233, 0), Vector(0, 0, 1), 1.0922),  # 4
    Part.Circle(Vector(-28.4785, -64.3733, 0), Vector(0, 0, 1), 1.0922),  # 5
], False)
sketch5.addConstraint([
    Sketcher.Constraint("Equal", 0, 1),
    Sketcher.Constraint("Equal", 1, 2),
    Sketcher.Constraint("Equal", 2, 3),
    Sketcher.Constraint("Equal", 4, 5),
    Sketcher.Constraint("Horizontal", 0, 3, 1, 3),
    Sketcher.Constraint("Horizontal", 2, 3, 3, 3),
    Sketcher.Constraint("Vertical", 0, 3, 2, 3),
    Sketcher.Constraint("Vertical", 1, 3, 3, 3),
    Sketcher.Constraint("Vertical", 4, 3, 5, 3),
    Sketcher.Constraint("Diameter", 0, 2.5),
    Sketcher.Constraint("Diameter", 4, 2.1844),
    Sketcher.Constraint("DistanceX", 0, 3, 1, 3, 18.8),
    Sketcher.Constraint("DistanceY", 2, 3, 0, 3, 55.9),
    Sketcher.Constraint("DistanceY", 4, 3, 5, 3, 19.05),
    Sketcher.Constraint("DistanceX", 4, 3, 3, 3, 0.256),
    Sketcher.Constraint("DistanceY", 4, 3, 3, 3, 28.144),
    Sketcher.Constraint("DistanceX", 0, 3, -1, 1, 47.0225),
    Sketcher.Constraint("DistanceY", -1, 1, 0, 3, 0.6207),
])
sketch5.setExpression("Constraints[9]", "Params.sketch5_diameter")
pocket2 = doc.addObject("PartDesign::Pocket", "Pocket001")
body.addObject(pocket2)
pocket2.Profile = sketch5
pocket2.setExpression("Length", "Params.pocket2_length")

# Sketch on XZ plane
sketch6 = doc.addObject("Sketcher::SketchObject", "Sketch005")
body.addObject(sketch6)
sketch6.AttachmentSupport = (doc.XZ_Plane, [""])
sketch6.MapMode = "FlatFace"
sketch6.addGeometry([
    Part.Circle(Vector(-28.2225, 0.6207, 0), Vector(0, 0, 1), 1.3),  # 0
    Part.Circle(Vector(-47.0225, 0.6207, 0), Vector(0, 0, 1), 1.3),  # 1
    Part.Circle(Vector(-47.0225, -55.2793, 0), Vector(0, 0, 1), 1.3),  # 2
    Part.Circle(Vector(-47.0225, -55.2793, 0), Vector(0, 0, 1), 1.25),  # 3
    Part.Circle(Vector(-28.2225, -55.2793, 0), Vector(0, 0, 1), 1.3),  # 4
    Part.Circle(Vector(-28.2225, -55.2793, 0), Vector(0, 0, 1), 1.25),  # 5
    Part.Circle(Vector(-28.4785, -83.4233, 0), Vector(0, 0, 1), 1.3),  # 6
    Part.Circle(Vector(-28.4785, -83.4233, 0), Vector(0, 0, 1), 1.0922),  # 7
    Part.Circle(Vector(-28.4785, -64.3733, 0), Vector(0, 0, 1), 1.3),  # 8
    Part.Circle(Vector(-28.4785, -64.3733, 0), Vector(0, 0, 1), 1.0922),  # 9
    Part.Circle(Vector(-47.0225, -73.8983, 0), Vector(0, 0, 1), 1.3),  # 10
], False)
sketch6.addConstraint([
    Sketcher.Constraint("Coincident", 3, 3, 2, 3),
    Sketcher.Constraint("Coincident", 5, 3, 4, 3),
    Sketcher.Constraint("Coincident", 7, 3, 6, 3),
    Sketcher.Constraint("Coincident", 9, 3, 8, 3),
    Sketcher.Constraint("Equal", 0, 1),
    Sketcher.Constraint("Equal", 1, 2),
    Sketcher.Constraint("Equal", 2, 4),
    Sketcher.Constraint("Equal", 3, 5),
    Sketcher.Constraint("Equal", 4, 6),
    Sketcher.Constraint("Equal", 6, 8),
    Sketcher.Constraint("Equal", 7, 9),
    Sketcher.Constraint("Equal", 8, 10),
    Sketcher.Constraint("Horizontal", 0, 3, 1, 3),
    Sketcher.Constraint("Horizontal", 3, 3, 4, 3),
    Sketcher.Constraint("Vertical", 1, 3, 2, 3),
    Sketcher.Constraint("Vertical", 0, 3, 4, 3),
    Sketcher.Constraint("Vertical", 7, 3, 8, 3),
    Sketcher.Constraint("Vertical", 3, 3, 10, 3),
    Sketcher.Constraint("Diameter", 0, 2.6),
    Sketcher.Constraint("Diameter", 3, 2.5),
    Sketcher.Constraint("Diameter", 7, 2.1844),
    Sketcher.Constraint("DistanceX", 1, 3, 0, 3, 18.8),
    Sketcher.Constraint("DistanceY", 2, 3, 1, 3, 55.9),
    Sketcher.Constraint("DistanceY", 6, 3, 8, 3, 19.05),
    Sketcher.Constraint("DistanceX", 6, 3, 4, 3, 0.256),
    Sketcher.Constraint("DistanceY", 6, 3, 4, 3, 28.144),
    Sketcher.Constraint("DistanceY", 10, 3, 2, 3, 18.619),
    Sketcher.Constraint("DistanceX", 0, 3, -1, 1, 28.2225),
    Sketcher.Constraint("DistanceY", -1, 1, 0, 3, 0.6207),
])
sketch6.setExpression("Constraints[18]", "Params.sketch6_diameter")
sketch6.setExpression("Constraints[19]", "Params.sketch6_diameter2")
pocket3 = doc.addObject("PartDesign::Pocket", "Pocket002")
body.addObject(pocket3)
pocket3.Profile = sketch6
pocket3.setExpression("Length", "Params.pocket3_length")

# Sketch on XZ plane
sketch7 = doc.addObject("Sketcher::SketchObject", "Sketch006")
body.addObject(sketch7)
sketch7.AttachmentSupport = (doc.XZ_Plane, [""])
sketch7.MapMode = "FlatFace"
sketch7.addGeometry([
    Part.LineSegment(Vector(-22.3225, -86.2173, 0), Vector(-24.3225, -86.2173, 0)),  # 0
    Part.LineSegment(Vector(-24.3225, -86.2173, 0), Vector(-24.3225, -106.2173, 0)),  # 1
    Part.LineSegment(Vector(-24.3225, -106.2173, 0), Vector(-22.3225, -106.2173, 0)),  # 2
    Part.ArcOfCircle(Part.Circle(Vector(-22.3225, -101.2173, 0), Vector(0, 0, 1), 5), math.radians(-90), math.radians(0)),  # 3
    Part.LineSegment(Vector(-17.3225, -101.2173, 0), Vector(-17.3225, -91.2173, 0)),  # 4
    Part.ArcOfCircle(Part.Circle(Vector(-22.3225, -91.2173, 0), Vector(0, 0, 1), 5), math.radians(0), math.radians(90)),  # 5
], False)
sketch7.addConstraint([
    Sketcher.Constraint("Coincident", 0, 2, 1, 1),
    Sketcher.Constraint("Coincident", 1, 2, 2, 1),
    Sketcher.Constraint("Tangent", 2, 2, 3, 1),
    Sketcher.Constraint("Tangent", 3, 2, 4, 1),
    Sketcher.Constraint("Tangent", 4, 2, 5, 1),
    Sketcher.Constraint("Tangent", 5, 2, 0, 1),
    Sketcher.Constraint("Horizontal", 0),
    Sketcher.Constraint("Vertical", 1),
    Sketcher.Constraint("Horizontal", 2),
    Sketcher.Constraint("Vertical", 4),
    Sketcher.Constraint("Equal", 3, 5),
    Sketcher.Constraint("Radius", 3, 5.0),
    Sketcher.Constraint("DistanceX", 0, 2, 0, 1, 2.0),
    Sketcher.Constraint("DistanceY", 1, 2, 1, 1, 20.0),
    Sketcher.Constraint("DistanceX", 3, 3, -1, 1, 22.3225),
    Sketcher.Constraint("DistanceY", 3, 3, -1, 1, 101.2173),
])
sketch7.setExpression("Constraints[11]", "Params.sketch7_radius")
sketch7.setExpression("Constraints[12]", "Params.sketch7_width")
sketch7.setExpression("Constraints[13]", "Params.sketch7_height")
pad4 = doc.addObject("PartDesign::Pad", "Pad003")
body.addObject(pad4)
pad4.Profile = sketch7
pad4.setExpression("Length", "Params.pad4_length")
pad4.Reversed = True
doc.recompute()

fillet = doc.addObject("PartDesign::Fillet", "Fillet")
body.addObject(fillet)
fillet.Base = (pad4, edges_at(pad4, [(-24.323, 2.5, -86.217), (-24.323, 2.5, -106.217)]))
fillet.setExpression("Radius", "Params.fillet_radius")

doc.recompute()
